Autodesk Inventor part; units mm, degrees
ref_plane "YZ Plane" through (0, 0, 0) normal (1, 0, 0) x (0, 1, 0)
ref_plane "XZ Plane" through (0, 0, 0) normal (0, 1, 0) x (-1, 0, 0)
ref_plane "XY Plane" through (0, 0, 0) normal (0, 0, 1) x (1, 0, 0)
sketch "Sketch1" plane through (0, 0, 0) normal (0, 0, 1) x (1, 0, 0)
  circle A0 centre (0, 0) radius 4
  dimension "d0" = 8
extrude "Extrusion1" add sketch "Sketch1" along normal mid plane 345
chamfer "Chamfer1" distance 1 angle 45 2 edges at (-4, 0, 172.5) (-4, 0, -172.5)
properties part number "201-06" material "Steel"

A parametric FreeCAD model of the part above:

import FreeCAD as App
import Part
import Sketcher
from FreeCAD import Vector


def edges_at(feature, points):
    """Names of the edges that pass closest to the given points."""
    edges = feature.Shape.Edges
    near = lambda p: min(range(len(edges)), key=lambda i: edges[i].distToShape(Part.Vertex(*p))[0])
    return sorted({f"Edge{near(p) + 1}" for p in points})

doc = App.newDocument("Part")
body = doc.addObject("PartDesign::Body", "Body")

# Sketch on XY plane
sketch1 = doc.addObject("Sketcher::SketchObject", "Sketch")
body.addObject(sketch1)
sketch1.AttachmentSupport = (doc.XY_Plane, [""])
sketch1.MapMode = "FlatFace"
sketch1.addGeometry(Part.Circle(Vector(0, 0, 0), Vector(0, 0, 1), 4), False)
sketch1.addConstraint([
    Sketcher.Constraint("Coincident", 0, 3, -1, 1),
    Sketcher.Constraint("Diameter", 0, 8.0),
])
pad1 = doc.addObject("PartDesign::Pad", "Pad")
body.addObject(pad1)
pad1.Profile = sketch1
pad1.Length = 345
pad1.Midplane = True
doc.recompute()

chamfer = doc.addObject("PartDesign::Chamfer", "Chamfer")
body.addObject(chamfer)
chamfer.Base = (pad1, edges_at(pad1, [(-4, 0, 172.5), (-4, 0, -172.5)]))
chamfer.Size = 1

doc.recompute()
